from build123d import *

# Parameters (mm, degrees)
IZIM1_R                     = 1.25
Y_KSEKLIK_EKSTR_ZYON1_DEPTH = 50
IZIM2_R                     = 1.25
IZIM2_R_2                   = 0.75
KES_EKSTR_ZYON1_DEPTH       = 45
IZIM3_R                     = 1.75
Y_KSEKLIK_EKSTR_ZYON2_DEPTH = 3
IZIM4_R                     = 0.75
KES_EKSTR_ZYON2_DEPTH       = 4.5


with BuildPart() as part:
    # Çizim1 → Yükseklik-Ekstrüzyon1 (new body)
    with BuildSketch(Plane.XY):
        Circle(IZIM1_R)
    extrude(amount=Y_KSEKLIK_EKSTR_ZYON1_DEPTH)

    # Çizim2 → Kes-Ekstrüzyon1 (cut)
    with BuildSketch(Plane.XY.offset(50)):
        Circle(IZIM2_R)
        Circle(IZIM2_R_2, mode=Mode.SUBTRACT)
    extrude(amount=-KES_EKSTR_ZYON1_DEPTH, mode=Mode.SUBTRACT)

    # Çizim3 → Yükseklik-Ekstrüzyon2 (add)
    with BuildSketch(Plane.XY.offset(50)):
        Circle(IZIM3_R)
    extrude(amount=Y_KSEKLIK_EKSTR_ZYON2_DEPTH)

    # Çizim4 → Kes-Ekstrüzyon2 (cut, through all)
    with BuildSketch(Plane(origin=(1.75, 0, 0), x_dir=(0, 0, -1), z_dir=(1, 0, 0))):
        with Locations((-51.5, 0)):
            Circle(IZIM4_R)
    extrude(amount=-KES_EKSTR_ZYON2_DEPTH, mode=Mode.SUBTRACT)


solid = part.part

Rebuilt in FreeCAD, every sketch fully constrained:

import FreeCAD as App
import Part
import Sketcher
Q = App.Units.Quantity

doc = App.newDocument("Part")
params = doc.addObject("Spreadsheet::Sheet", "Params")
for row, (alias, value) in enumerate([
    ("sketch1_diameter", "2.5 mm"),
    ("pad1_length", "50 mm"),
    ("sketch2_diameter", "2.5 mm"),
    ("sketch2_diameter2", "1.5 mm"),
    ("pocket1_length", "45 mm"),
    ("sketch3_diameter", "3.5 mm"),
    ("pad2_length", "3 mm"),
    ("sketch4_diameter", "1.5 mm"),
], start=1):
    params.set(f"A{row}", alias)
    params.set(f"B{row}", "=" + value)
    params.setAlias(f"B{row}", alias)

body = doc.addObject("PartDesign::Body", "Body")

# Sketch on XY plane
sketch1 = body.newObject("Sketcher::SketchObject", "Sketch")
sketch1.AttachmentSupport = (doc.getObject("XY_Plane"), [""])
sketch1.MapMode = "FlatFace"
sketch1.addGeometry(Part.Circle(App.Vector(0, 0, 0), App.Vector(0, 0, 1), 1.2), False)
sketch1.addConstraint(Sketcher.Constraint("Coincident", 0, 3, -1, 1))
sketch1.addConstraint(Sketcher.Constraint("Diameter", 0, Q("2.5 mm")))
sketch1.setExpression("Constraints[1]", "Params.sketch1_diameter")
pad1 = body.newObject("PartDesign::Pad", "Pad")
pad1.Profile = sketch1
pad1.setExpression("Length", "Params.pad1_length")

# Sketch on XY plane
sketch2 = body.newObject("Sketcher::SketchObject", "Sketch001")
sketch2.AttachmentSupport = (doc.getObject("XY_Plane"), [""])
sketch2.MapMode = "FlatFace"
sketch2.AttachmentOffset = App.Placement(App.Vector(0, 0, 50), App.Rotation())
sketch2.addGeometry(Part.Circle(App.Vector(0, 0, 0), App.Vector(0, 0, 1), 1.2), False)
sketch2.addGeometry(Part.Circle(App.Vector(0, 0, 0), App.Vector(0, 0, 1), 0.8), False)
sketch2.addConstraint(Sketcher.Constraint("Coincident", 0, 3, -1, 1))
sketch2.addConstraint(Sketcher.Constraint("Coincident", 1, 3, -1, 1))
sketch2.addConstraint(Sketcher.Constraint("Diameter", 0, Q("2.5 mm")))
sketch2.addConstraint(Sketcher.Constraint("Diameter", 1, Q("1.5 mm")))
sketch2.setExpression("Constraints[2]", "Params.sketch2_diameter")
sketch2.setExpression("Constraints[3]", "Params.sketch2_diameter2")
pocket1 = body.newObject("PartDesign::Pocket", "Pocket")
pocket1.Profile = sketch2
pocket1.setExpression("Length", "Params.pocket1_length")

# Sketch on XY plane
sketch3 = body.newObject("Sketcher::SketchObject", "Sketch002")
sketch3.AttachmentSupport = (doc.getObject("XY_Plane"), [""])
sketch3.MapMode = "FlatFace"
sketch3.AttachmentOffset = App.Placement(App.Vector(0, 0, 50), App.Rotation())
sketch3.addGeometry(Part.Circle(App.Vector(0, 0, 0), App.Vector(0, 0, 1), 1.8), False)
sketch3.addConstraint(Sketcher.Constraint("Coincident", 0, 3, -1, 1))
sketch3.addConstraint(Sketcher.Constraint("Diameter", 0, Q("3.5 mm")))
sketch3.setExpression("Constraints[1]", "Params.sketch3_diameter")
pad2 = body.newObject("PartDesign::Pad", "Pad001")
pad2.Profile = sketch3
pad2.setExpression("Length", "Params.pad2_length")

# Sketch on YZ plane
sketch4 = body.newObject("Sketcher::SketchObject", "Sketch003")
sketch4.AttachmentSupport = (doc.getObject("YZ_Plane"), [""])
sketch4.MapMode = "FlatFace"
sketch4.AttachmentOffset = App.Placement(App.Vector(0, 0, 1.75), App.Rotation())
sketch4.addGeometry(Part.Circle(App.Vector(0, 51.5, 0), App.Vector(0, 0, 1), 0.8), False)
sketch4.addConstraint(Sketcher.Constraint("PointOnObject", 0, 3, -2))
sketch4.addConstraint(Sketcher.Constraint("Diameter", 0, Q("1.5 mm")))
sketch4.addConstraint(Sketcher.Constraint("DistanceY", -1, 1, 0, 3, Q("51.5 mm")))
sketch4.setExpression("Constraints[1]", "Params.sketch4_diameter")
pocket2 = body.newObject("PartDesign::Pocket", "Pocket001")
pocket2.Profile = sketch4
pocket2.Type = "ThroughAll"

doc.recompute()
